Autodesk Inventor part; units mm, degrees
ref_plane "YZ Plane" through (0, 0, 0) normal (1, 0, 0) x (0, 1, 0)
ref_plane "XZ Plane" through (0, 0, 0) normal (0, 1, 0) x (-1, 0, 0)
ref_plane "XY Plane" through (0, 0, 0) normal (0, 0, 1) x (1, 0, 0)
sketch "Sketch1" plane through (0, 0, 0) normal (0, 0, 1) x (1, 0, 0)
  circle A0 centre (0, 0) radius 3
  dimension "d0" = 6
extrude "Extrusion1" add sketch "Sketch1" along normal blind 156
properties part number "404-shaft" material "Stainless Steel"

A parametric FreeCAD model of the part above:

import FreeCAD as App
import Part
import Sketcher
from FreeCAD import Vector
Q = App.Units.Quantity

doc = App.newDocument("Part")
body = doc.addObject("PartDesign::Body", "Body")

sketch1 = body.newObject("Sketcher::SketchObject", "Sketch")
sketch1.AttachmentSupport = (doc.getObject("XY_Plane"), [""])
sketch1.MapMode = "FlatFace"
sketch1.addGeometry(Part.Circle(Vector(0, 0, 0), Vector(0, 0, 1), 3), False)
sketch1.addConstraint([
    Sketcher.Constraint("Coincident", 0, 3, -1, 1),
    Sketcher.Constraint("Diameter", 0, Q("6 mm")),
])
pad1 = body.newObject("PartDesign::Pad", "Pad")
pad1.Profile = sketch1
pad1.Length = 156

doc.recompute()
